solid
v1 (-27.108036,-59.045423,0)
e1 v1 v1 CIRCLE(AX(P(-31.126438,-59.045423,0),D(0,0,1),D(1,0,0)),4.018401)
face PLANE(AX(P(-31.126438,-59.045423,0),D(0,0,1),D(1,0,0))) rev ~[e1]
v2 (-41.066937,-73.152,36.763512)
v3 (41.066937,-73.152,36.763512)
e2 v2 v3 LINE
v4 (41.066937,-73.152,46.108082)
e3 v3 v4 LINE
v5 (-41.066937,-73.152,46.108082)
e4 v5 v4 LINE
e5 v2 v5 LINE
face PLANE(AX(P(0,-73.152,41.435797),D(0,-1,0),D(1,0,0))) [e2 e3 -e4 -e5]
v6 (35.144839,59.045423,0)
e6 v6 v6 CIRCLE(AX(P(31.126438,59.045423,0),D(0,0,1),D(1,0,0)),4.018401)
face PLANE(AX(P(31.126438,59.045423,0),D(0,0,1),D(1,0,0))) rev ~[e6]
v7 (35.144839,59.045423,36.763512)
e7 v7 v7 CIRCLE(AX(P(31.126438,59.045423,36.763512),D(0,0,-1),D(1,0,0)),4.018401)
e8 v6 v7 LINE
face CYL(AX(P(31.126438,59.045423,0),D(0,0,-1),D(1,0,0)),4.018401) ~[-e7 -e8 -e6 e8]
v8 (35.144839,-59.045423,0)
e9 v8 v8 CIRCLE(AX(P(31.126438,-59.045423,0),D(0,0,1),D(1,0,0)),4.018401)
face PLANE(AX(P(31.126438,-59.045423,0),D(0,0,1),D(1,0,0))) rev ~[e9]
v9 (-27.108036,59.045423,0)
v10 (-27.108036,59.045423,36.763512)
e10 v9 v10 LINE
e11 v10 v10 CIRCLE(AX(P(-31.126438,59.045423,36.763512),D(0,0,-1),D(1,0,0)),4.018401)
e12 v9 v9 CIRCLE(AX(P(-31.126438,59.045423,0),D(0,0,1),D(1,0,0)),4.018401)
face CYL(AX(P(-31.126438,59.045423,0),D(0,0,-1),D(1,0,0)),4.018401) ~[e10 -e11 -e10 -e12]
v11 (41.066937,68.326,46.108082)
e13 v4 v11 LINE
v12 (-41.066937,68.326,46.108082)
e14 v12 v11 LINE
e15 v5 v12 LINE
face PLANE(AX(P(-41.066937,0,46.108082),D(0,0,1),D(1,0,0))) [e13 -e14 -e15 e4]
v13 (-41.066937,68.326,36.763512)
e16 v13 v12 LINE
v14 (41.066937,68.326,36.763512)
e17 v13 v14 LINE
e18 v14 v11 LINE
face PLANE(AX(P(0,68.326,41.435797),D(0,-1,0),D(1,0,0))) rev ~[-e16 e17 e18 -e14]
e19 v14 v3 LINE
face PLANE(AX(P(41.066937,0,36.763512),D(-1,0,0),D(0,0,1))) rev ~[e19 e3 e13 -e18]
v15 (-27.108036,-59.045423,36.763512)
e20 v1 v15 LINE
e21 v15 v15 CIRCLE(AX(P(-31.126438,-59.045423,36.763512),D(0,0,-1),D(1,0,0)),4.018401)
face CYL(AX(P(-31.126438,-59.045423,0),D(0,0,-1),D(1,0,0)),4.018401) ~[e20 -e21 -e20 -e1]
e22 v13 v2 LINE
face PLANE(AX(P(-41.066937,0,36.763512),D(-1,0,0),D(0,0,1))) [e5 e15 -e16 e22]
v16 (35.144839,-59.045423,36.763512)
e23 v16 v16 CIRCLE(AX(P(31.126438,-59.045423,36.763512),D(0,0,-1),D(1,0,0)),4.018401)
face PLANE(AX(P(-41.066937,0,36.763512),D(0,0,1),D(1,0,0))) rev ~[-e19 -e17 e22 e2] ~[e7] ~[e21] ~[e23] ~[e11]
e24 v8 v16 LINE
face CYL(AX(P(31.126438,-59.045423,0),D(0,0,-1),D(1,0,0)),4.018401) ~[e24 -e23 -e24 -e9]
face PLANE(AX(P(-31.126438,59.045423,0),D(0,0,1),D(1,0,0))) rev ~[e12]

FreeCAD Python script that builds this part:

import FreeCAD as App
import Part
import Sketcher
from FreeCAD import Vector
Q = App.Units.Quantity

doc = App.newDocument("Part")
body = doc.addObject("PartDesign::Body", "Body")

sketch1 = body.newObject("Sketcher::SketchObject", "Sketch")
sketch1.AttachmentSupport = (doc.getObject("XZ_Plane"), [""])
sketch1.MapMode = "FlatFace"
sketch1.addGeometry([
    Part.LineSegment(Vector(-41, 46, 0), Vector(-41, 37, 0)),
    Part.LineSegment(Vector(-41, 37, 0), Vector(41, 37, 0)),
    Part.LineSegment(Vector(41, 37, 0), Vector(41, 46, 0)),
    Part.LineSegment(Vector(41, 46, 0), Vector(-41, 46, 0)),
], False)
sketch1.addConstraint([
    Sketcher.Constraint("Coincident", 0, 2, 1, 1),
    Sketcher.Constraint("Coincident", 1, 2, 2, 1),
    Sketcher.Constraint("Coincident", 2, 2, 3, 1),
    Sketcher.Constraint("Coincident", 3, 2, 0, 1),
    Sketcher.Constraint("Vertical", 0),
    Sketcher.Constraint("Horizontal", 1),
    Sketcher.Constraint("Vertical", 2),
    Sketcher.Constraint("Horizontal", 3),
    Sketcher.Constraint("DistanceY", 0, 2, 0, 1, Q("9.34457 mm")),
    Sketcher.Constraint("DistanceX", 1, 1, 1, 2, Q("82.133874 mm")),
    Sketcher.Constraint("DistanceY", -1, 1, 0, 2, Q("36.763512 mm")),
    Sketcher.Constraint("DistanceX", 0, 2, -1, 1, Q("41.066937 mm")),
])
pad1 = body.newObject("PartDesign::Pad", "Pad")
pad1.Profile = sketch1
pad1.Type = "TwoLengths"
pad1.Length = Q("2.69 in")
pad1.Length2 = Q("2.88 in")
pad1.Reversed = True

sketch2 = body.newObject("Sketcher::SketchObject", "Sketch001")
sketch2.AttachmentSupport = (doc.getObject("XY_Plane"), [""])
sketch2.MapMode = "FlatFace"
sketch2.addGeometry([
    Part.Circle(Vector(-31.1, 59, 0), Vector(0, 0, 1), 4),
    Part.Circle(Vector(31.1, 59, 0), Vector(0, 0, 1), 4),
    Part.Circle(Vector(-31.1, -59, 0), Vector(0, 0, 1), 4),
    Part.Circle(Vector(31.1, -59, 0), Vector(0, 0, 1), 4),
], False)
sketch2.addConstraint([
    Sketcher.Constraint("Equal", 0, 1),
    Sketcher.Constraint("Equal", 1, 2),
    Sketcher.Constraint("Equal", 2, 3),
    Sketcher.Constraint("Symmetric", 1, 3, 2, 3, -1, 1),
    Sketcher.Constraint("Symmetric", 0, 3, 3, 3, -1, 1),
    Sketcher.Constraint("Symmetric", 0, 3, 1, 3, -2),
    Sketcher.Constraint("Diameter", 0, Q("8.036803 mm")),
    Sketcher.Constraint("DistanceX", 0, 3, -1, 1, Q("31.126438 mm")),
    Sketcher.Constraint("DistanceY", -1, 1, 0, 3, Q("59.045423 mm")),
])
pad2 = body.newObject("PartDesign::Pad", "Pad001")
pad2.Profile = sketch2
pad2.Length = Q("1.8 in")

doc.recompute()
